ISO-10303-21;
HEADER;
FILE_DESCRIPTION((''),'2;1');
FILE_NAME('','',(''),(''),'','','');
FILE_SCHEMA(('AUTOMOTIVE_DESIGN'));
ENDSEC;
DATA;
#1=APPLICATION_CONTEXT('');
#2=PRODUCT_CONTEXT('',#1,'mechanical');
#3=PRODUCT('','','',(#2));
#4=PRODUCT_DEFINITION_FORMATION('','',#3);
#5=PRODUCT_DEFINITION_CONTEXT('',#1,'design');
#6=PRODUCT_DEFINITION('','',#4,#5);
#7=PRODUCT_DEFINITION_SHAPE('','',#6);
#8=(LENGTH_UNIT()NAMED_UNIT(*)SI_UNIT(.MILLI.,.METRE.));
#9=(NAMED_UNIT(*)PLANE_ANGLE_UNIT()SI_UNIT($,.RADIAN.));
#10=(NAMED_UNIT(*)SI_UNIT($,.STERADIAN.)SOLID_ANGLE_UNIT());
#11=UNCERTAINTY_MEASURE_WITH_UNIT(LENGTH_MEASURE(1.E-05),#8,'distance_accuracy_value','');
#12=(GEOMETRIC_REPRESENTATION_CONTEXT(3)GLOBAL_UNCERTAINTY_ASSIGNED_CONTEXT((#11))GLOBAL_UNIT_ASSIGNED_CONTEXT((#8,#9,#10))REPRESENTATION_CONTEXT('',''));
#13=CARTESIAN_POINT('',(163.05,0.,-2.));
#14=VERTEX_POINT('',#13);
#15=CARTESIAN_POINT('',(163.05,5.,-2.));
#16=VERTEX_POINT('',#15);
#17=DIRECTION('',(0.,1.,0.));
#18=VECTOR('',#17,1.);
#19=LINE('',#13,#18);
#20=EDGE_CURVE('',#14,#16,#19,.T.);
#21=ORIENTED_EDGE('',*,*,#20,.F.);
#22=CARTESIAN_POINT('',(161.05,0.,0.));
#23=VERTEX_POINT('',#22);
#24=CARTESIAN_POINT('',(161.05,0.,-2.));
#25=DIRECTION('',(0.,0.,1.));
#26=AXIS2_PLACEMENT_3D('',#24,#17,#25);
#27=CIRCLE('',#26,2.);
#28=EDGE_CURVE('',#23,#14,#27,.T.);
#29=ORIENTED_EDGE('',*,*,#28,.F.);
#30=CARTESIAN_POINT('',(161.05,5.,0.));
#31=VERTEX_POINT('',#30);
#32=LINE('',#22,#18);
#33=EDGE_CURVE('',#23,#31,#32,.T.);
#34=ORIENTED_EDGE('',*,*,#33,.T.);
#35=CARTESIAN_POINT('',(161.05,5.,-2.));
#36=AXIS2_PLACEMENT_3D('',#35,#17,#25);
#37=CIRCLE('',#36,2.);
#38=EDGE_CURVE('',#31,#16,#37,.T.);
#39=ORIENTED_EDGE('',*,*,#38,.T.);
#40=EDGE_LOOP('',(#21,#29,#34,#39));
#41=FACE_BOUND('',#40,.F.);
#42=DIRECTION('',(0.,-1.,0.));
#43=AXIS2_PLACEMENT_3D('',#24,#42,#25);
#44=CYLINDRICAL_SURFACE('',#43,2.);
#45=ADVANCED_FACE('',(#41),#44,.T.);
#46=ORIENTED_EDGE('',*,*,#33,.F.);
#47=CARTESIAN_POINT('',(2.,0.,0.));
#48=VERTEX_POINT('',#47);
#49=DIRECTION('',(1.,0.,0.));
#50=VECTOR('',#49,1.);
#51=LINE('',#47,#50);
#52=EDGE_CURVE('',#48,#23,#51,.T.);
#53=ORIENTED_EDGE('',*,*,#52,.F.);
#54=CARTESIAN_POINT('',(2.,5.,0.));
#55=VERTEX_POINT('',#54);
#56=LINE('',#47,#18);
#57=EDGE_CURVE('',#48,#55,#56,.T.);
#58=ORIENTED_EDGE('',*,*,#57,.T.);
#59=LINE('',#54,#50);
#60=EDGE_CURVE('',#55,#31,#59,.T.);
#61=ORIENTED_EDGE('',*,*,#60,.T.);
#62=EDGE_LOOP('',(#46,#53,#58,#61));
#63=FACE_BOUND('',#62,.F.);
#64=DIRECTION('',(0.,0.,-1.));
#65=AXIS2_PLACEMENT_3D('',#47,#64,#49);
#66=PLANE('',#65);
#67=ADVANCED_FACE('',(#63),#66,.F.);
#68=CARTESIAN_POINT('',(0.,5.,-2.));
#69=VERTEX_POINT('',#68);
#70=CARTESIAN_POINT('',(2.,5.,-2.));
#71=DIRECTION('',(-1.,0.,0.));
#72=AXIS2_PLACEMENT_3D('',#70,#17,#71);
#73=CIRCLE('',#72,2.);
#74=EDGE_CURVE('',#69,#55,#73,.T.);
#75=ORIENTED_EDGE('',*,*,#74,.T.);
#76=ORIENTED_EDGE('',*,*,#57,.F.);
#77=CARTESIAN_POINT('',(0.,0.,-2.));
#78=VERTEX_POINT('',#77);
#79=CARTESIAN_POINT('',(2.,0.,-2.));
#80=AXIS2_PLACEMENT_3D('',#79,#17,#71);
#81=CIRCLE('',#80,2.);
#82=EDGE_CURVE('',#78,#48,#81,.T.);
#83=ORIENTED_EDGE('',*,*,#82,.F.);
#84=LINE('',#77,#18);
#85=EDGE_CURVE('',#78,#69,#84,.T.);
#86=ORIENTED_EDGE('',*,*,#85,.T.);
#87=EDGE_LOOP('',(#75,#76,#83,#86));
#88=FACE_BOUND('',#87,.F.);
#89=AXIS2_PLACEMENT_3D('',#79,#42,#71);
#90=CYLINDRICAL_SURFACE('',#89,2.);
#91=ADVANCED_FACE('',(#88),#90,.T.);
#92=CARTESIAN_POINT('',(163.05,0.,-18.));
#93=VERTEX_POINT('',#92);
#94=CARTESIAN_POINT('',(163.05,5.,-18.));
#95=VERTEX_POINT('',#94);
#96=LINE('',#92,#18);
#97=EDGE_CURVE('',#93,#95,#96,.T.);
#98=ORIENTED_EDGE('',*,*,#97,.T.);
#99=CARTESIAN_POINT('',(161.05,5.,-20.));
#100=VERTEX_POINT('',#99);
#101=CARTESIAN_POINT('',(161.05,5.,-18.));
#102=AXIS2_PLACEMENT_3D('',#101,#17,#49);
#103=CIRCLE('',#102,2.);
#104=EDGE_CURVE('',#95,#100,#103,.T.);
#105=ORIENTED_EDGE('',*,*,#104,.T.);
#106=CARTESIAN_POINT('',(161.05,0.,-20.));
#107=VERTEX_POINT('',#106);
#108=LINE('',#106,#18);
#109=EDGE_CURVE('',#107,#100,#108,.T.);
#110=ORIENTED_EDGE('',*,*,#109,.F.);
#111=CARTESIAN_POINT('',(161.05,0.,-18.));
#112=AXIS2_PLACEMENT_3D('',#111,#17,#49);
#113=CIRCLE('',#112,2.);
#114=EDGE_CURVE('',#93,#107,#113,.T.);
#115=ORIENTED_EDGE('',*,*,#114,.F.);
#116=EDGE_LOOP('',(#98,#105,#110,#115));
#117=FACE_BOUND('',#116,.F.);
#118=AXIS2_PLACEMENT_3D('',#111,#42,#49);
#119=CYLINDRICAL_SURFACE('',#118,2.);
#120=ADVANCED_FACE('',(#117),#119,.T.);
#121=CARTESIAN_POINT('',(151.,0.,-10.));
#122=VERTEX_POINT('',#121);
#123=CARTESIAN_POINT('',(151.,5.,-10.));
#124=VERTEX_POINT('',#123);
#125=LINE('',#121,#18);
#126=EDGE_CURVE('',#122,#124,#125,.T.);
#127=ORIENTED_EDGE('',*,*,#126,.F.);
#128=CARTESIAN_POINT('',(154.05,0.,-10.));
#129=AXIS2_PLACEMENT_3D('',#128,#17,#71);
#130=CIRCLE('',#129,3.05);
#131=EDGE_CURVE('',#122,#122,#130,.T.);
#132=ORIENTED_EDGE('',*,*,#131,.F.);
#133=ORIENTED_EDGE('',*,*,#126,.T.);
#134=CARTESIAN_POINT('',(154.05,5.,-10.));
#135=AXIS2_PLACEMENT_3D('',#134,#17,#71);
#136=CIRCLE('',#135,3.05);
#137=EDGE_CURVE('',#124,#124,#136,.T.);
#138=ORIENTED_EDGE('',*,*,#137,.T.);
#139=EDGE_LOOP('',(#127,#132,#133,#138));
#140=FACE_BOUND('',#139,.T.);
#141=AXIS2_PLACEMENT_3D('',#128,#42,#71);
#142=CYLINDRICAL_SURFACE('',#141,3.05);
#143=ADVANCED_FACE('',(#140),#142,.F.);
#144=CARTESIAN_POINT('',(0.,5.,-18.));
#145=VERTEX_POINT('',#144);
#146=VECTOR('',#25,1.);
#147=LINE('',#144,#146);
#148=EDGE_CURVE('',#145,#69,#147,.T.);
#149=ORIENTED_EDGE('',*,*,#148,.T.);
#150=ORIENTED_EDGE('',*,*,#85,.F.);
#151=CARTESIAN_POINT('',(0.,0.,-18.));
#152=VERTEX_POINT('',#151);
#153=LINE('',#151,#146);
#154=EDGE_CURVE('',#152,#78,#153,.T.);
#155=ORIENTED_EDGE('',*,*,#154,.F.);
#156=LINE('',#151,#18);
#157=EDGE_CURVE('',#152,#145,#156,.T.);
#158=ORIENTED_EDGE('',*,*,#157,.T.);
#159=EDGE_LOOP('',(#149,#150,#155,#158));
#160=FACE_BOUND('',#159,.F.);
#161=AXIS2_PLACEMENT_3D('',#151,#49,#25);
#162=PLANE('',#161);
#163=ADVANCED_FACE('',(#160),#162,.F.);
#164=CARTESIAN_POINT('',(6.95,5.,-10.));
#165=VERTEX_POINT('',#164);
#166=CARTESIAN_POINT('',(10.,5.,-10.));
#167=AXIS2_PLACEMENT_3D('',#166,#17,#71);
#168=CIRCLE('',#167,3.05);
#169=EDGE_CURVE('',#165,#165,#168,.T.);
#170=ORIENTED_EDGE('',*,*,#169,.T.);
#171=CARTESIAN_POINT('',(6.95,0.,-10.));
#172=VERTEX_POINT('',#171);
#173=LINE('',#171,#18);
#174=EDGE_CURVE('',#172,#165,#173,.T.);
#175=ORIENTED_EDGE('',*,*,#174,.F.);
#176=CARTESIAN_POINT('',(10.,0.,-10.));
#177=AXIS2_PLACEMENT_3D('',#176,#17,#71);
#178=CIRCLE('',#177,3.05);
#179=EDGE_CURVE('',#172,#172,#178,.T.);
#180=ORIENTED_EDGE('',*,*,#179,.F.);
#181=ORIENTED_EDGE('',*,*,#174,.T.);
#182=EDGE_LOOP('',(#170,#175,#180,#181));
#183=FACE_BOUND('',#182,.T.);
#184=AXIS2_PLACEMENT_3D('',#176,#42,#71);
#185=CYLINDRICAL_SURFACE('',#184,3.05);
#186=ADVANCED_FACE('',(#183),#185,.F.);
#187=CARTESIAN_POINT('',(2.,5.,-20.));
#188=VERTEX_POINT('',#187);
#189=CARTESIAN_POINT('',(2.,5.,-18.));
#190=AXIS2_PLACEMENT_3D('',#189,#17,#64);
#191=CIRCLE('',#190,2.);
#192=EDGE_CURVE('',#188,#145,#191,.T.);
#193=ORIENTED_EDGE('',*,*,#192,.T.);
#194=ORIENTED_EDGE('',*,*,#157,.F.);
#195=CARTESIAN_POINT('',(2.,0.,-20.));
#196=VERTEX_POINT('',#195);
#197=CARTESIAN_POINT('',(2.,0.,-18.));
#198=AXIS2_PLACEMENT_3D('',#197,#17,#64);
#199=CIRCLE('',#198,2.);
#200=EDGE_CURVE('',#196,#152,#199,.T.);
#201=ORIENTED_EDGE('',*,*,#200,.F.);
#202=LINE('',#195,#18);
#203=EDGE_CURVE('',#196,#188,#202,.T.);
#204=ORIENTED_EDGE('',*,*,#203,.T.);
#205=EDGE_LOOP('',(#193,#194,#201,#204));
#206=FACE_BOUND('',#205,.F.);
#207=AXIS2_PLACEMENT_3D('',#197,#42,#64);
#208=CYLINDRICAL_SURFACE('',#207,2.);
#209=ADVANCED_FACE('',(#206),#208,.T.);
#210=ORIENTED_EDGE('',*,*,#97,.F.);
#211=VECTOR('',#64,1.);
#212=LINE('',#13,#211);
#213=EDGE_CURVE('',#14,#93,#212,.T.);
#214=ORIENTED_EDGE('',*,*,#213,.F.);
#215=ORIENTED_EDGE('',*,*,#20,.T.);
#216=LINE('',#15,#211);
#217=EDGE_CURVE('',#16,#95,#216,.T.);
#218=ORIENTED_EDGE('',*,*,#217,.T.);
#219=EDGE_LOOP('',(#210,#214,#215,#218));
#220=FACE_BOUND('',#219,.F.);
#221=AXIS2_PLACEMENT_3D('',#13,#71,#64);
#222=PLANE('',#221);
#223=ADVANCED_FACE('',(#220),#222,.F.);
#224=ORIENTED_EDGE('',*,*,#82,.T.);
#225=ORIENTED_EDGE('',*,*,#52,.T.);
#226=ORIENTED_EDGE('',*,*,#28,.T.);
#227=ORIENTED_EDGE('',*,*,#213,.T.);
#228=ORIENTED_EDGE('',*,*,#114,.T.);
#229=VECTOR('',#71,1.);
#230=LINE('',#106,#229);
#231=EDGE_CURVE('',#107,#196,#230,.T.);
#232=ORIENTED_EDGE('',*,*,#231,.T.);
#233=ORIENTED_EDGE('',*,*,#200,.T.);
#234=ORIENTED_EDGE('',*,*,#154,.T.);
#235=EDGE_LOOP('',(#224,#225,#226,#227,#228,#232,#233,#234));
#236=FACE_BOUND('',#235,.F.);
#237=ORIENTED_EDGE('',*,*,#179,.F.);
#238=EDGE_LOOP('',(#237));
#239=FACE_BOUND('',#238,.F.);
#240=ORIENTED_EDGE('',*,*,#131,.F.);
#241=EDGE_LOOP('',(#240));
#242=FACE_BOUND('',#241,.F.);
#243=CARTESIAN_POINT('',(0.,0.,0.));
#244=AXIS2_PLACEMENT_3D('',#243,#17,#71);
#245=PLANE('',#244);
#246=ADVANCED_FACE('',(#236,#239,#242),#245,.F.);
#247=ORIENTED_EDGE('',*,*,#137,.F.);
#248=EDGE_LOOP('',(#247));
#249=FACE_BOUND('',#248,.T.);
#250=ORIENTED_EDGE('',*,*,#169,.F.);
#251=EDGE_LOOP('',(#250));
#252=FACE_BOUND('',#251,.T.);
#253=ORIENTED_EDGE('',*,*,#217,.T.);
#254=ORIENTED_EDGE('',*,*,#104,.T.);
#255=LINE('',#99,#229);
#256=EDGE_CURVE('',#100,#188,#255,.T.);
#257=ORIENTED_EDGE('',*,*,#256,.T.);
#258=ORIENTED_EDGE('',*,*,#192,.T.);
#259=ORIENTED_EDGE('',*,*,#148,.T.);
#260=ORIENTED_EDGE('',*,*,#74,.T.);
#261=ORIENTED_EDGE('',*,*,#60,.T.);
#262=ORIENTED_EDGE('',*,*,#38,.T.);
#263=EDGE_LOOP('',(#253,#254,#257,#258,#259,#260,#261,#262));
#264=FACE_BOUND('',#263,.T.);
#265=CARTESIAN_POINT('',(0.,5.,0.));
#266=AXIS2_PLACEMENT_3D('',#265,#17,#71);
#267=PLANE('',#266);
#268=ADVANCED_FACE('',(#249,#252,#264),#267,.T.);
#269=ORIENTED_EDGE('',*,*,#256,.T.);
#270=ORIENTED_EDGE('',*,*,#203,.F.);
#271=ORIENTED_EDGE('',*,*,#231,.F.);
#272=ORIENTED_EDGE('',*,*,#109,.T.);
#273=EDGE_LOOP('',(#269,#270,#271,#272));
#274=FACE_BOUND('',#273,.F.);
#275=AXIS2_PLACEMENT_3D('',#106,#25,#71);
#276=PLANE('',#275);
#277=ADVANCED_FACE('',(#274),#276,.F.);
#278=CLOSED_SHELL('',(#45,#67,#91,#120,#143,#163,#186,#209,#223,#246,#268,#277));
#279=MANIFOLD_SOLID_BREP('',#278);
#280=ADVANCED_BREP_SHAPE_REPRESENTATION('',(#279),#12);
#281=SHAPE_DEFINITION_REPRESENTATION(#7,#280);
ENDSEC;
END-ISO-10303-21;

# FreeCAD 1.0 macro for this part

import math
import FreeCAD as App
import Part
import Sketcher

V = App.Vector

doc = App.newDocument("Part")
body = doc.addObject("PartDesign::Body", "Body")

# Sketch on XZ plane
sketch1 = body.newObject("Sketcher::SketchObject", "Sketch")
sketch1.AttachmentSupport = (doc.getObject("XZ_Plane"), [""])
sketch1.MapMode = "FlatFace"
sketch1.addGeometry([
    Part.ArcOfCircle(Part.Circle(V(2, -2, 0), V(0, 0, 1), 2), math.radians(90), math.radians(180)),  # 0
    Part.LineSegment(V(2, 0, 0), V(161.1, 0, 0)),  # 1
    Part.ArcOfCircle(Part.Circle(V(161.1, -2, 0), V(0, 0, 1), 2), math.radians(0), math.radians(90)),  # 2
    Part.LineSegment(V(163.1, -2, 0), V(163.1, -18, 0)),  # 3
    Part.ArcOfCircle(Part.Circle(V(161.1, -18, 0), V(0, 0, 1), 2), math.radians(-90), math.radians(0)),  # 4
    Part.LineSegment(V(161.1, -20, 0), V(2, -20, 0)),  # 5
    Part.ArcOfCircle(Part.Circle(V(2, -18, 0), V(0, 0, 1), 2), math.radians(180), math.radians(270)),  # 6
    Part.LineSegment(V(0, -18, 0), V(0, -2, 0)),  # 7
    Part.Circle(V(154.1, -10, 0), V(0, 0, 1), 3),  # 8
    Part.Circle(V(10, -10, 0), V(0, 0, 1), 3),  # 9
], False)
sketch1.addConstraint([
    Sketcher.Constraint("Tangent", 0, 1, 1, 1),
    Sketcher.Constraint("Tangent", 1, 2, 2, 2),
    Sketcher.Constraint("Tangent", 2, 1, 3, 1),
    Sketcher.Constraint("Tangent", 3, 2, 4, 2),
    Sketcher.Constraint("Tangent", 4, 1, 5, 1),
    Sketcher.Constraint("Tangent", 5, 2, 6, 2),
    Sketcher.Constraint("Tangent", 6, 1, 7, 1),
    Sketcher.Constraint("Tangent", 7, 2, 0, 2),
    Sketcher.Constraint("Horizontal", 1),
    Sketcher.Constraint("Vertical", 3),
    Sketcher.Constraint("Horizontal", 5),
    Sketcher.Constraint("Vertical", 7),
    Sketcher.Constraint("Equal", 0, 2),
    Sketcher.Constraint("Equal", 2, 4),
    Sketcher.Constraint("Equal", 4, 6),
    Sketcher.Constraint("Equal", 8, 9),
    Sketcher.Constraint("PointOnObject", 0, 1, -1),
    Sketcher.Constraint("PointOnObject", 6, 1, -2),
    Sketcher.Constraint("Horizontal", 8, 3, 9, 3),
    Sketcher.Constraint("Radius", 0, 2.0),
    Sketcher.Constraint("Diameter", 8, 6.1),
    Sketcher.Constraint("DistanceY", 8, 3, -1, 1, 10.0),
    Sketcher.Constraint("DistanceX", -1, 1, 9, 3, 10.0),
    Sketcher.Constraint("DistanceY", 4, 1, -1, 1, 20.0),
    Sketcher.Constraint("DistanceX", 8, 3, 2, 3, 7.0),
    Sketcher.Constraint("DistanceX", 1, 1, 1, 2, 159.05),
])
pad1 = body.newObject("PartDesign::Pad", "Pad")
pad1.Profile = sketch1
pad1.Length = 5
pad1.Reversed = True

doc.recompute()
